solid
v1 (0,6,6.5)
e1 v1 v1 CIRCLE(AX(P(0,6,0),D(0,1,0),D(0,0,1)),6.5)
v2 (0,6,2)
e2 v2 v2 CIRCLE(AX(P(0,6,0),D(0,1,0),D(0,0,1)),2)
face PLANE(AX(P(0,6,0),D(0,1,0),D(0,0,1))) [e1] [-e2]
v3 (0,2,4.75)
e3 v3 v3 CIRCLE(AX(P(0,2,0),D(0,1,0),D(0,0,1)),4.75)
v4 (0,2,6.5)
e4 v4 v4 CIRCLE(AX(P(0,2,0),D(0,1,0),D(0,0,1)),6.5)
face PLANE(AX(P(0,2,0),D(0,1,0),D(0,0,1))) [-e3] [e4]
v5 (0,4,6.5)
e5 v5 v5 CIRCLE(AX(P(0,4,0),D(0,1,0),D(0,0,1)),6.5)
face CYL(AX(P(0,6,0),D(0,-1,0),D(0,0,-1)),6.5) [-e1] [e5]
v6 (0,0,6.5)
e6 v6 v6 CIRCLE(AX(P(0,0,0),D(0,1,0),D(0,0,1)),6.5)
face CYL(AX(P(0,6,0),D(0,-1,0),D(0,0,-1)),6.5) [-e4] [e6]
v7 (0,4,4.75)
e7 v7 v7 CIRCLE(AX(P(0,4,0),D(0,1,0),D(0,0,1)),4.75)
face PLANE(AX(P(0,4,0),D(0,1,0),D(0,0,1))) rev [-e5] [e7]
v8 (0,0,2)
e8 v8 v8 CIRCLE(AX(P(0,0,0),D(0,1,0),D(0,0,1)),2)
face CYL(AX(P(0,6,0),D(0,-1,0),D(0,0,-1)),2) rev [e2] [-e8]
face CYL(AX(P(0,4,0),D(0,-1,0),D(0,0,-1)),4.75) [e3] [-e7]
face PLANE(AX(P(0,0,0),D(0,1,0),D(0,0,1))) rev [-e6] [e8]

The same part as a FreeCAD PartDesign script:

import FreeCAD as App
import Part
import Sketcher
from FreeCAD import Vector

doc = App.newDocument("Part")
body = doc.addObject("PartDesign::Body", "Body")

sketch1 = body.newObject("Sketcher::SketchObject", "Sketch")
sketch1.AttachmentSupport = (doc.getObject("XZ_Plane"), [""])
sketch1.MapMode = "FlatFace"
sketch1.addGeometry([
    Part.Circle(Vector(0, 0, 0), Vector(0, 0, 1), 6.5),
    Part.Circle(Vector(0, 0, 0), Vector(0, 0, 1), 2),
], False)
sketch1.addConstraint([
    Sketcher.Constraint("Coincident", 0, 3, -1, 1),
    Sketcher.Constraint("Coincident", 1, 3, -1, 1),
    Sketcher.Constraint("Diameter", 0, 13.0),
    Sketcher.Constraint("Diameter", 1, 4.0),
])
pad1 = body.newObject("PartDesign::Pad", "Pad")
pad1.Profile = sketch1
pad1.Length = 6
pad1.Reversed = True

sketch2 = body.newObject("Sketcher::SketchObject", "Sketch001")
sketch2.AttachmentSupport = (doc.getObject("XZ_Plane"), [""])
sketch2.MapMode = "FlatFace"
sketch2.AttachmentOffset = App.Placement(Vector(0, 0, -3), App.Rotation())
sketch2.addGeometry([
    Part.Circle(Vector(0, 0, 0), Vector(0, 0, 1), 7),
    Part.Circle(Vector(0, 0, 0), Vector(0, 0, 1), 4.8),
], False)
sketch2.addConstraint([
    Sketcher.Constraint("Coincident", 0, 3, -1, 1),
    Sketcher.Constraint("Coincident", 1, 3, -1, 1),
    Sketcher.Constraint("Diameter", 0, 14.0),
    Sketcher.Constraint("Diameter", 1, 9.5),
])
pocket1 = body.newObject("PartDesign::Pocket", "Pocket")
pocket1.Profile = sketch2
pocket1.Type = "TwoLengths"
pocket1.Length = 1
pocket1.Length2 = 1

doc.recompute()
